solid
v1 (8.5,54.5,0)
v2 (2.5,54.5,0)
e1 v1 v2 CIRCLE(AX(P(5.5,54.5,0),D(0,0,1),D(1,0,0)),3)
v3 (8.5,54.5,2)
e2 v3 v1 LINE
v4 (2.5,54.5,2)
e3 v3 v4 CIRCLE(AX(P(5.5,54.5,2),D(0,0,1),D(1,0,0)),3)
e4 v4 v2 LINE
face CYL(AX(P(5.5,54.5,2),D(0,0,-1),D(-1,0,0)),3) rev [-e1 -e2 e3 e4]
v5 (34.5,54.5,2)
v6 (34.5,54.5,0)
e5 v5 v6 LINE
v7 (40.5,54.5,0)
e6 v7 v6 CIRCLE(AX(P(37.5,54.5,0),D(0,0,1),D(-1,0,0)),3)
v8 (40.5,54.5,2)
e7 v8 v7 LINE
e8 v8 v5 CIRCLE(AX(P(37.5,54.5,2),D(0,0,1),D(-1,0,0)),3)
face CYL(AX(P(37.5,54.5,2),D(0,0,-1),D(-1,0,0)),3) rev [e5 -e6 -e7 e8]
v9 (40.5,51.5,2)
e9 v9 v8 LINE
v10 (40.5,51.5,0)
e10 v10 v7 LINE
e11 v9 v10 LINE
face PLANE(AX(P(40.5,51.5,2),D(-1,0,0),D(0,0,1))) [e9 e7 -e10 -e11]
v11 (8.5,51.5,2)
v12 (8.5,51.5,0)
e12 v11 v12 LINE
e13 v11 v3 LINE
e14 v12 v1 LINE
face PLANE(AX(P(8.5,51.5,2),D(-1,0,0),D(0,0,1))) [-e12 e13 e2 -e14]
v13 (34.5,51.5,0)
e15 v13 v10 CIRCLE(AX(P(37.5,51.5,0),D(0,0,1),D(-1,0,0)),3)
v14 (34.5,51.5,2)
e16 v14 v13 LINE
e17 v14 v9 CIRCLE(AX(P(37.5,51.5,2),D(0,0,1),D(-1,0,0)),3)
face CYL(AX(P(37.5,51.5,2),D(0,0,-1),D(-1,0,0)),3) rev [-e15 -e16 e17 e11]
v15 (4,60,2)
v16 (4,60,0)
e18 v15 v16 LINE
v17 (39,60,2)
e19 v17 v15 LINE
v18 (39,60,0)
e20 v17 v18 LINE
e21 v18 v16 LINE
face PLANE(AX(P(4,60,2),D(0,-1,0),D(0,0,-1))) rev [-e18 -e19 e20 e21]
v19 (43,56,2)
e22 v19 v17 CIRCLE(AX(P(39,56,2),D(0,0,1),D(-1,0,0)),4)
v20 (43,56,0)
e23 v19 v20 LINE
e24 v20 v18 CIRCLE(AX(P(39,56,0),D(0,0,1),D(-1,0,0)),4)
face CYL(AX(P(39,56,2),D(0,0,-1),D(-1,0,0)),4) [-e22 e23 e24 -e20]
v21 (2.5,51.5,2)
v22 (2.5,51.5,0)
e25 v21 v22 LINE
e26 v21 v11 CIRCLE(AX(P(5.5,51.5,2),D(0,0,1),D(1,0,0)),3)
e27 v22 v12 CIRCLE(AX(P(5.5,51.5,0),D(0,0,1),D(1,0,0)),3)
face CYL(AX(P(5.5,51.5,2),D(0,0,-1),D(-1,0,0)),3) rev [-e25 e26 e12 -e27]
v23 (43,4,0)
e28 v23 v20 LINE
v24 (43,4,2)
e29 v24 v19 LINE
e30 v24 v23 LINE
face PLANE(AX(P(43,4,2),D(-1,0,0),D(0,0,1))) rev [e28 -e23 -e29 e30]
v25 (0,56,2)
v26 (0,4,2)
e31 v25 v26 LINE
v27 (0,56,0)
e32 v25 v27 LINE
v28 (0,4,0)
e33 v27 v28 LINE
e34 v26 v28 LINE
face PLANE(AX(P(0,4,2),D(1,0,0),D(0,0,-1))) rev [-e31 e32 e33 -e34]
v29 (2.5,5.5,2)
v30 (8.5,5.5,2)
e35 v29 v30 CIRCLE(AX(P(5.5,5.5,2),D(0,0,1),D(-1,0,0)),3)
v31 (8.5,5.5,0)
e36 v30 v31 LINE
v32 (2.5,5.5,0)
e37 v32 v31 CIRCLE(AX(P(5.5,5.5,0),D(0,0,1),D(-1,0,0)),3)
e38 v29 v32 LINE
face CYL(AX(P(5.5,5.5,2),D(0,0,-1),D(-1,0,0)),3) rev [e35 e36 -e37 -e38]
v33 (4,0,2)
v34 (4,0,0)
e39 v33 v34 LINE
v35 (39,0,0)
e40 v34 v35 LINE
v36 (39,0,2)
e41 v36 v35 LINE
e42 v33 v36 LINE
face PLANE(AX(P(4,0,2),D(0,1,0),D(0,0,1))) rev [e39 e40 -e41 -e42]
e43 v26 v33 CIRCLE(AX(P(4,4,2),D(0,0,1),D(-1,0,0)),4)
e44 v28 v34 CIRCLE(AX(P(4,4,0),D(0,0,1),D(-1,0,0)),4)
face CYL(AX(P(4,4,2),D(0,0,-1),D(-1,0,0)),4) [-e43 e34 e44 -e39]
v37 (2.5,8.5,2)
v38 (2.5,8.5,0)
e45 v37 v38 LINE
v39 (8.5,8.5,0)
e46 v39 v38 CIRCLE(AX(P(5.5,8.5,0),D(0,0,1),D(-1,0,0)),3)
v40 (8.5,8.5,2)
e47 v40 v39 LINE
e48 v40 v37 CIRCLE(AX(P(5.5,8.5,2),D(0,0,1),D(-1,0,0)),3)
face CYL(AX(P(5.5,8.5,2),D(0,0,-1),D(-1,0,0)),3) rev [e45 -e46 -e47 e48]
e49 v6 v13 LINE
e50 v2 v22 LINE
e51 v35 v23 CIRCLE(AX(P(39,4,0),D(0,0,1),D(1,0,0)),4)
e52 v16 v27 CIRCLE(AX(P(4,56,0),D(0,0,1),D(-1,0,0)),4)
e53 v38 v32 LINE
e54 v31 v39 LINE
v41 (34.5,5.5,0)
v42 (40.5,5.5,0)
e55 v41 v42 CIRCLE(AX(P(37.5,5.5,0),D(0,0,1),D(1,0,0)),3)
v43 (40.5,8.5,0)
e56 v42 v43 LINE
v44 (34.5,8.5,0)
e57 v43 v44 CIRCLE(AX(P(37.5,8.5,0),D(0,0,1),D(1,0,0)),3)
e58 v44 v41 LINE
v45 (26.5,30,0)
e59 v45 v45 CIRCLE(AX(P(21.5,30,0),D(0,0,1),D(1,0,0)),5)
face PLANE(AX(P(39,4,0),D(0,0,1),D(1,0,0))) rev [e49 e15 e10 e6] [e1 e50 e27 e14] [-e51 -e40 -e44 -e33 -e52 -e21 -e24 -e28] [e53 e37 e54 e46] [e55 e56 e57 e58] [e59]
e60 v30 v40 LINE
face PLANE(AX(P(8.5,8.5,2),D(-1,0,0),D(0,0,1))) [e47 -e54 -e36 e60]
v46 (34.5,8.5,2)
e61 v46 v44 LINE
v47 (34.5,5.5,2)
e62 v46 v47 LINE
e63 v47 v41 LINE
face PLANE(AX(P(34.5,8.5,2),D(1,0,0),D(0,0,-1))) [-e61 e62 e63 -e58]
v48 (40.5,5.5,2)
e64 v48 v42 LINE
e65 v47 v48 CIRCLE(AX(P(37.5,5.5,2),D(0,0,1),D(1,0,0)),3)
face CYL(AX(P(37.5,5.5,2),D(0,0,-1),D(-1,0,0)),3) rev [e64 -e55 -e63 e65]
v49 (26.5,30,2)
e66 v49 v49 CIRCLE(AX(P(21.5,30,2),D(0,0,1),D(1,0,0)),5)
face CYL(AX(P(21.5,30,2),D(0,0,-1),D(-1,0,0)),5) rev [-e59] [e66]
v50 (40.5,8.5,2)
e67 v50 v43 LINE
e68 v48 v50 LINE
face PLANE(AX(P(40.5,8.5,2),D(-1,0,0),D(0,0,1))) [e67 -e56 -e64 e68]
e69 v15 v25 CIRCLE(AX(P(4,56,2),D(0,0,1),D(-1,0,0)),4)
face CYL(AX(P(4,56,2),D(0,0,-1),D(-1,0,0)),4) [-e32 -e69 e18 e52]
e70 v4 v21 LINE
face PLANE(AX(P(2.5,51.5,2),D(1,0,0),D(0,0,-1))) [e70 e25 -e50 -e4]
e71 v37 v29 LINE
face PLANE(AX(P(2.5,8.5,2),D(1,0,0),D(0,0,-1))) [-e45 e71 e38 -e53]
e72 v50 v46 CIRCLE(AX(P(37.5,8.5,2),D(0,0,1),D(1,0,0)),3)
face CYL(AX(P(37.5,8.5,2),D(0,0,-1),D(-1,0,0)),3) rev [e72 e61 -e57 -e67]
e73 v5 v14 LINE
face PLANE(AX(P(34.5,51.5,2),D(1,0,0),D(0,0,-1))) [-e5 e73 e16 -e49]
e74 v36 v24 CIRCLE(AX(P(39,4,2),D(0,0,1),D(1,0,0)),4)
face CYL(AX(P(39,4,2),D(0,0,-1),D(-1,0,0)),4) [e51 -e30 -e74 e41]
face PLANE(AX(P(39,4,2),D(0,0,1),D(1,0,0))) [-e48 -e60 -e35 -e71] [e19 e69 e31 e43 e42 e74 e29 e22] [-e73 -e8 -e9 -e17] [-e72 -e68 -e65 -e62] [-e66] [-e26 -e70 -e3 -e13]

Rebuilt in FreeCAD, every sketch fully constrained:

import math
import FreeCAD as App
import Part
import Sketcher

V = App.Vector
Q = App.Units.Quantity

doc = App.newDocument("Part")
body = doc.addObject("PartDesign::Body", "Body")

# Sketch on XY plane
sketch1 = body.newObject("Sketcher::SketchObject", "Sketch")
sketch1.AttachmentSupport = (doc.getObject("XY_Plane"), [""])
sketch1.MapMode = "FlatFace"
sketch1.addGeometry(Part.LineSegment(V(4, 0, 0), V(39, 0, 0)), False)
sketch1.addGeometry(Part.ArcOfCircle(Part.Circle(V(39, 4, 0), V(0, 0, 1), 4), math.radians(-90), math.radians(0)), False)
sketch1.addGeometry(Part.LineSegment(V(43, 4, 0), V(43, 56, 0)), False)
sketch1.addGeometry(Part.ArcOfCircle(Part.Circle(V(39, 56, 0), V(0, 0, 1), 4), math.radians(0), math.radians(90)), False)
sketch1.addGeometry(Part.LineSegment(V(39, 60, 0), V(4, 60, 0)), False)
sketch1.addGeometry(Part.ArcOfCircle(Part.Circle(V(4, 56, 0), V(0, 0, 1), 4), math.radians(90), math.radians(180)), False)
sketch1.addGeometry(Part.LineSegment(V(0, 56, 0), V(0, 4, 0)), False)
sketch1.addGeometry(Part.ArcOfCircle(Part.Circle(V(4, 4, 0), V(0, 0, 1), 4), math.radians(180), math.radians(270)), False)
sketch1.addGeometry(Part.LineSegment(V(2.5, 5.5, 0), V(2.5, 8.5, 0)), False)
sketch1.addGeometry(Part.ArcOfCircle(Part.Circle(V(5.5, 8.5, 0), V(0, 0, 1), 3), math.radians(0), math.radians(180)), False)
sketch1.addGeometry(Part.LineSegment(V(8.5, 8.5, 0), V(8.5, 5.5, 0)), False)
sketch1.addGeometry(Part.ArcOfCircle(Part.Circle(V(5.5, 5.5, 0), V(0, 0, 1), 3), math.radians(180), math.radians(360)), False)
sketch1.addGeometry(Part.ArcOfCircle(Part.Circle(V(37.5, 8.5, 0), V(0, 0, 1), 3), math.radians(0), math.radians(180)), False)
sketch1.addGeometry(Part.LineSegment(V(40.5, 8.5, 0), V(40.5, 5.5, 0)), False)
sketch1.addGeometry(Part.ArcOfCircle(Part.Circle(V(37.5, 5.5, 0), V(0, 0, 1), 3), math.radians(180), math.radians(360)), False)
sketch1.addGeometry(Part.LineSegment(V(34.5, 5.5, 0), V(34.5, 8.5, 0)), False)
sketch1.addGeometry(Part.ArcOfCircle(Part.Circle(V(5.5, 51.5, 0), V(0, 0, 1), 3), math.radians(180), math.radians(360)), False)
sketch1.addGeometry(Part.LineSegment(V(2.5, 51.5, 0), V(2.5, 54.5, 0)), False)
sketch1.addGeometry(Part.ArcOfCircle(Part.Circle(V(5.5, 54.5, 0), V(0, 0, 1), 3), math.radians(0), math.radians(180)), False)
sketch1.addGeometry(Part.LineSegment(V(8.5, 54.5, 0), V(8.5, 51.5, 0)), False)
sketch1.addGeometry(Part.Circle(V(21.5, 30, 0), V(0, 0, 1), 5), False)
sketch1.addGeometry(Part.LineSegment(V(40.5, 54.5, 0), V(40.5, 51.5, 0)), False)
sketch1.addGeometry(Part.ArcOfCircle(Part.Circle(V(37.5, 51.5, 0), V(0, 0, 1), 3), math.radians(180), math.radians(360)), False)
sketch1.addGeometry(Part.LineSegment(V(34.5, 51.5, 0), V(34.5, 54.5, 0)), False)
sketch1.addGeometry(Part.ArcOfCircle(Part.Circle(V(37.5, 54.5, 0), V(0, 0, 1), 3), math.radians(0), math.radians(180)), False)
sketch1.addConstraint(Sketcher.Constraint("Tangent", 0, 2, 1, 1))
sketch1.addConstraint(Sketcher.Constraint("Tangent", 1, 2, 2, 1))
sketch1.addConstraint(Sketcher.Constraint("Tangent", 2, 2, 3, 1))
sketch1.addConstraint(Sketcher.Constraint("Tangent", 3, 2, 4, 1))
sketch1.addConstraint(Sketcher.Constraint("Tangent", 4, 2, 5, 1))
sketch1.addConstraint(Sketcher.Constraint("Tangent", 5, 2, 6, 1))
sketch1.addConstraint(Sketcher.Constraint("Tangent", 6, 2, 7, 1))
sketch1.addConstraint(Sketcher.Constraint("Tangent", 7, 2, 0, 1))
sketch1.addConstraint(Sketcher.Constraint("Tangent", 8, 2, 9, 2))
sketch1.addConstraint(Sketcher.Constraint("Tangent", 9, 1, 10, 1))
sketch1.addConstraint(Sketcher.Constraint("Tangent", 10, 2, 11, 2))
sketch1.addConstraint(Sketcher.Constraint("Tangent", 11, 1, 8, 1))
sketch1.addConstraint(Sketcher.Constraint("Tangent", 12, 1, 13, 1))
sketch1.addConstraint(Sketcher.Constraint("Tangent", 13, 2, 14, 2))
sketch1.addConstraint(Sketcher.Constraint("Tangent", 14, 1, 15, 1))
sketch1.addConstraint(Sketcher.Constraint("Tangent", 15, 2, 12, 2))
sketch1.addConstraint(Sketcher.Constraint("Tangent", 16, 1, 17, 1))
sketch1.addConstraint(Sketcher.Constraint("Tangent", 17, 2, 18, 2))
sketch1.addConstraint(Sketcher.Constraint("Tangent", 18, 1, 19, 1))
sketch1.addConstraint(Sketcher.Constraint("Tangent", 19, 2, 16, 2))
sketch1.addConstraint(Sketcher.Constraint("Tangent", 21, 2, 22, 2))
sketch1.addConstraint(Sketcher.Constraint("Tangent", 22, 1, 23, 1))
sketch1.addConstraint(Sketcher.Constraint("Tangent", 23, 2, 24, 2))
sketch1.addConstraint(Sketcher.Constraint("Tangent", 24, 1, 21, 1))
sketch1.addConstraint(Sketcher.Constraint("Horizontal", 0))
sketch1.addConstraint(Sketcher.Constraint("Vertical", 2))
sketch1.addConstraint(Sketcher.Constraint("Horizontal", 4))
sketch1.addConstraint(Sketcher.Constraint("Vertical", 6))
sketch1.addConstraint(Sketcher.Constraint("Vertical", 8))
sketch1.addConstraint(Sketcher.Constraint("Vertical", 10))
sketch1.addConstraint(Sketcher.Constraint("Vertical", 13))
sketch1.addConstraint(Sketcher.Constraint("Vertical", 15))
sketch1.addConstraint(Sketcher.Constraint("Vertical", 17))
sketch1.addConstraint(Sketcher.Constraint("Vertical", 19))
sketch1.addConstraint(Sketcher.Constraint("Vertical", 21))
sketch1.addConstraint(Sketcher.Constraint("Vertical", 23))
sketch1.addConstraint(Sketcher.Constraint("Equal", 1, 3))
sketch1.addConstraint(Sketcher.Constraint("Equal", 3, 5))
sketch1.addConstraint(Sketcher.Constraint("Equal", 5, 7))
sketch1.addConstraint(Sketcher.Constraint("Equal", 11, 12))
sketch1.addConstraint(Sketcher.Constraint("Equal", 14, 16))
sketch1.addConstraint(Sketcher.Constraint("Equal", 18, 22))
sketch1.addConstraint(Sketcher.Constraint("PointOnObject", 0, 2, -1))
sketch1.addConstraint(Sketcher.Constraint("PointOnObject", 5, 2, -2))
sketch1.addConstraint(Sketcher.Constraint("Horizontal", 9, 3, 12, 3))
sketch1.addConstraint(Sketcher.Constraint("Horizontal", 11, 3, 14, 3))
sketch1.addConstraint(Sketcher.Constraint("Horizontal", 16, 3, 22, 3))
sketch1.addConstraint(Sketcher.Constraint("Horizontal", 18, 3, 24, 3))
sketch1.addConstraint(Sketcher.Constraint("Vertical", 11, 3, 16, 3))
sketch1.addConstraint(Sketcher.Constraint("Vertical", 14, 3, 22, 3))
sketch1.addConstraint(Sketcher.Constraint("Equal", 15, 17))
sketch1.addConstraint(Sketcher.Constraint("Diameter", 20, Q("10 mm")))
sketch1.addConstraint(Sketcher.Constraint("Radius", 1, Q("4 mm")))
sketch1.addConstraint(Sketcher.Constraint("Radius", 9, Q("3 mm")))
sketch1.addConstraint(Sketcher.Constraint("DistanceX", 0, 1, 0, 2, Q("35 mm")))
sketch1.addConstraint(Sketcher.Constraint("DistanceY", 2, 1, 2, 2, Q("52 mm")))
sketch1.addConstraint(Sketcher.Constraint("DistanceY", 8, 1, 8, 2, Q("3 mm")))
sketch1.addConstraint(Sketcher.Constraint("DistanceY", -1, 1, 20, 3, Q("30 mm")))
sketch1.addConstraint(Sketcher.Constraint("DistanceX", 9, 3, 12, 3, Q("32 mm")))
sketch1.addConstraint(Sketcher.Constraint("DistanceY", 9, 3, 16, 3, Q("43 mm")))
sketch1.addConstraint(Sketcher.Constraint("DistanceX", 9, 3, 20, 3, Q("16 mm")))
sketch1.addConstraint(Sketcher.Constraint("DistanceX", -1, 1, 9, 3, Q("5.5 mm")))
sketch1.addConstraint(Sketcher.Constraint("DistanceY", -1, 1, 9, 3, Q("8.5 mm")))
pad1 = body.newObject("PartDesign::Pad", "Pad")
pad1.Profile = sketch1
pad1.Length = 2

doc.recompute()
